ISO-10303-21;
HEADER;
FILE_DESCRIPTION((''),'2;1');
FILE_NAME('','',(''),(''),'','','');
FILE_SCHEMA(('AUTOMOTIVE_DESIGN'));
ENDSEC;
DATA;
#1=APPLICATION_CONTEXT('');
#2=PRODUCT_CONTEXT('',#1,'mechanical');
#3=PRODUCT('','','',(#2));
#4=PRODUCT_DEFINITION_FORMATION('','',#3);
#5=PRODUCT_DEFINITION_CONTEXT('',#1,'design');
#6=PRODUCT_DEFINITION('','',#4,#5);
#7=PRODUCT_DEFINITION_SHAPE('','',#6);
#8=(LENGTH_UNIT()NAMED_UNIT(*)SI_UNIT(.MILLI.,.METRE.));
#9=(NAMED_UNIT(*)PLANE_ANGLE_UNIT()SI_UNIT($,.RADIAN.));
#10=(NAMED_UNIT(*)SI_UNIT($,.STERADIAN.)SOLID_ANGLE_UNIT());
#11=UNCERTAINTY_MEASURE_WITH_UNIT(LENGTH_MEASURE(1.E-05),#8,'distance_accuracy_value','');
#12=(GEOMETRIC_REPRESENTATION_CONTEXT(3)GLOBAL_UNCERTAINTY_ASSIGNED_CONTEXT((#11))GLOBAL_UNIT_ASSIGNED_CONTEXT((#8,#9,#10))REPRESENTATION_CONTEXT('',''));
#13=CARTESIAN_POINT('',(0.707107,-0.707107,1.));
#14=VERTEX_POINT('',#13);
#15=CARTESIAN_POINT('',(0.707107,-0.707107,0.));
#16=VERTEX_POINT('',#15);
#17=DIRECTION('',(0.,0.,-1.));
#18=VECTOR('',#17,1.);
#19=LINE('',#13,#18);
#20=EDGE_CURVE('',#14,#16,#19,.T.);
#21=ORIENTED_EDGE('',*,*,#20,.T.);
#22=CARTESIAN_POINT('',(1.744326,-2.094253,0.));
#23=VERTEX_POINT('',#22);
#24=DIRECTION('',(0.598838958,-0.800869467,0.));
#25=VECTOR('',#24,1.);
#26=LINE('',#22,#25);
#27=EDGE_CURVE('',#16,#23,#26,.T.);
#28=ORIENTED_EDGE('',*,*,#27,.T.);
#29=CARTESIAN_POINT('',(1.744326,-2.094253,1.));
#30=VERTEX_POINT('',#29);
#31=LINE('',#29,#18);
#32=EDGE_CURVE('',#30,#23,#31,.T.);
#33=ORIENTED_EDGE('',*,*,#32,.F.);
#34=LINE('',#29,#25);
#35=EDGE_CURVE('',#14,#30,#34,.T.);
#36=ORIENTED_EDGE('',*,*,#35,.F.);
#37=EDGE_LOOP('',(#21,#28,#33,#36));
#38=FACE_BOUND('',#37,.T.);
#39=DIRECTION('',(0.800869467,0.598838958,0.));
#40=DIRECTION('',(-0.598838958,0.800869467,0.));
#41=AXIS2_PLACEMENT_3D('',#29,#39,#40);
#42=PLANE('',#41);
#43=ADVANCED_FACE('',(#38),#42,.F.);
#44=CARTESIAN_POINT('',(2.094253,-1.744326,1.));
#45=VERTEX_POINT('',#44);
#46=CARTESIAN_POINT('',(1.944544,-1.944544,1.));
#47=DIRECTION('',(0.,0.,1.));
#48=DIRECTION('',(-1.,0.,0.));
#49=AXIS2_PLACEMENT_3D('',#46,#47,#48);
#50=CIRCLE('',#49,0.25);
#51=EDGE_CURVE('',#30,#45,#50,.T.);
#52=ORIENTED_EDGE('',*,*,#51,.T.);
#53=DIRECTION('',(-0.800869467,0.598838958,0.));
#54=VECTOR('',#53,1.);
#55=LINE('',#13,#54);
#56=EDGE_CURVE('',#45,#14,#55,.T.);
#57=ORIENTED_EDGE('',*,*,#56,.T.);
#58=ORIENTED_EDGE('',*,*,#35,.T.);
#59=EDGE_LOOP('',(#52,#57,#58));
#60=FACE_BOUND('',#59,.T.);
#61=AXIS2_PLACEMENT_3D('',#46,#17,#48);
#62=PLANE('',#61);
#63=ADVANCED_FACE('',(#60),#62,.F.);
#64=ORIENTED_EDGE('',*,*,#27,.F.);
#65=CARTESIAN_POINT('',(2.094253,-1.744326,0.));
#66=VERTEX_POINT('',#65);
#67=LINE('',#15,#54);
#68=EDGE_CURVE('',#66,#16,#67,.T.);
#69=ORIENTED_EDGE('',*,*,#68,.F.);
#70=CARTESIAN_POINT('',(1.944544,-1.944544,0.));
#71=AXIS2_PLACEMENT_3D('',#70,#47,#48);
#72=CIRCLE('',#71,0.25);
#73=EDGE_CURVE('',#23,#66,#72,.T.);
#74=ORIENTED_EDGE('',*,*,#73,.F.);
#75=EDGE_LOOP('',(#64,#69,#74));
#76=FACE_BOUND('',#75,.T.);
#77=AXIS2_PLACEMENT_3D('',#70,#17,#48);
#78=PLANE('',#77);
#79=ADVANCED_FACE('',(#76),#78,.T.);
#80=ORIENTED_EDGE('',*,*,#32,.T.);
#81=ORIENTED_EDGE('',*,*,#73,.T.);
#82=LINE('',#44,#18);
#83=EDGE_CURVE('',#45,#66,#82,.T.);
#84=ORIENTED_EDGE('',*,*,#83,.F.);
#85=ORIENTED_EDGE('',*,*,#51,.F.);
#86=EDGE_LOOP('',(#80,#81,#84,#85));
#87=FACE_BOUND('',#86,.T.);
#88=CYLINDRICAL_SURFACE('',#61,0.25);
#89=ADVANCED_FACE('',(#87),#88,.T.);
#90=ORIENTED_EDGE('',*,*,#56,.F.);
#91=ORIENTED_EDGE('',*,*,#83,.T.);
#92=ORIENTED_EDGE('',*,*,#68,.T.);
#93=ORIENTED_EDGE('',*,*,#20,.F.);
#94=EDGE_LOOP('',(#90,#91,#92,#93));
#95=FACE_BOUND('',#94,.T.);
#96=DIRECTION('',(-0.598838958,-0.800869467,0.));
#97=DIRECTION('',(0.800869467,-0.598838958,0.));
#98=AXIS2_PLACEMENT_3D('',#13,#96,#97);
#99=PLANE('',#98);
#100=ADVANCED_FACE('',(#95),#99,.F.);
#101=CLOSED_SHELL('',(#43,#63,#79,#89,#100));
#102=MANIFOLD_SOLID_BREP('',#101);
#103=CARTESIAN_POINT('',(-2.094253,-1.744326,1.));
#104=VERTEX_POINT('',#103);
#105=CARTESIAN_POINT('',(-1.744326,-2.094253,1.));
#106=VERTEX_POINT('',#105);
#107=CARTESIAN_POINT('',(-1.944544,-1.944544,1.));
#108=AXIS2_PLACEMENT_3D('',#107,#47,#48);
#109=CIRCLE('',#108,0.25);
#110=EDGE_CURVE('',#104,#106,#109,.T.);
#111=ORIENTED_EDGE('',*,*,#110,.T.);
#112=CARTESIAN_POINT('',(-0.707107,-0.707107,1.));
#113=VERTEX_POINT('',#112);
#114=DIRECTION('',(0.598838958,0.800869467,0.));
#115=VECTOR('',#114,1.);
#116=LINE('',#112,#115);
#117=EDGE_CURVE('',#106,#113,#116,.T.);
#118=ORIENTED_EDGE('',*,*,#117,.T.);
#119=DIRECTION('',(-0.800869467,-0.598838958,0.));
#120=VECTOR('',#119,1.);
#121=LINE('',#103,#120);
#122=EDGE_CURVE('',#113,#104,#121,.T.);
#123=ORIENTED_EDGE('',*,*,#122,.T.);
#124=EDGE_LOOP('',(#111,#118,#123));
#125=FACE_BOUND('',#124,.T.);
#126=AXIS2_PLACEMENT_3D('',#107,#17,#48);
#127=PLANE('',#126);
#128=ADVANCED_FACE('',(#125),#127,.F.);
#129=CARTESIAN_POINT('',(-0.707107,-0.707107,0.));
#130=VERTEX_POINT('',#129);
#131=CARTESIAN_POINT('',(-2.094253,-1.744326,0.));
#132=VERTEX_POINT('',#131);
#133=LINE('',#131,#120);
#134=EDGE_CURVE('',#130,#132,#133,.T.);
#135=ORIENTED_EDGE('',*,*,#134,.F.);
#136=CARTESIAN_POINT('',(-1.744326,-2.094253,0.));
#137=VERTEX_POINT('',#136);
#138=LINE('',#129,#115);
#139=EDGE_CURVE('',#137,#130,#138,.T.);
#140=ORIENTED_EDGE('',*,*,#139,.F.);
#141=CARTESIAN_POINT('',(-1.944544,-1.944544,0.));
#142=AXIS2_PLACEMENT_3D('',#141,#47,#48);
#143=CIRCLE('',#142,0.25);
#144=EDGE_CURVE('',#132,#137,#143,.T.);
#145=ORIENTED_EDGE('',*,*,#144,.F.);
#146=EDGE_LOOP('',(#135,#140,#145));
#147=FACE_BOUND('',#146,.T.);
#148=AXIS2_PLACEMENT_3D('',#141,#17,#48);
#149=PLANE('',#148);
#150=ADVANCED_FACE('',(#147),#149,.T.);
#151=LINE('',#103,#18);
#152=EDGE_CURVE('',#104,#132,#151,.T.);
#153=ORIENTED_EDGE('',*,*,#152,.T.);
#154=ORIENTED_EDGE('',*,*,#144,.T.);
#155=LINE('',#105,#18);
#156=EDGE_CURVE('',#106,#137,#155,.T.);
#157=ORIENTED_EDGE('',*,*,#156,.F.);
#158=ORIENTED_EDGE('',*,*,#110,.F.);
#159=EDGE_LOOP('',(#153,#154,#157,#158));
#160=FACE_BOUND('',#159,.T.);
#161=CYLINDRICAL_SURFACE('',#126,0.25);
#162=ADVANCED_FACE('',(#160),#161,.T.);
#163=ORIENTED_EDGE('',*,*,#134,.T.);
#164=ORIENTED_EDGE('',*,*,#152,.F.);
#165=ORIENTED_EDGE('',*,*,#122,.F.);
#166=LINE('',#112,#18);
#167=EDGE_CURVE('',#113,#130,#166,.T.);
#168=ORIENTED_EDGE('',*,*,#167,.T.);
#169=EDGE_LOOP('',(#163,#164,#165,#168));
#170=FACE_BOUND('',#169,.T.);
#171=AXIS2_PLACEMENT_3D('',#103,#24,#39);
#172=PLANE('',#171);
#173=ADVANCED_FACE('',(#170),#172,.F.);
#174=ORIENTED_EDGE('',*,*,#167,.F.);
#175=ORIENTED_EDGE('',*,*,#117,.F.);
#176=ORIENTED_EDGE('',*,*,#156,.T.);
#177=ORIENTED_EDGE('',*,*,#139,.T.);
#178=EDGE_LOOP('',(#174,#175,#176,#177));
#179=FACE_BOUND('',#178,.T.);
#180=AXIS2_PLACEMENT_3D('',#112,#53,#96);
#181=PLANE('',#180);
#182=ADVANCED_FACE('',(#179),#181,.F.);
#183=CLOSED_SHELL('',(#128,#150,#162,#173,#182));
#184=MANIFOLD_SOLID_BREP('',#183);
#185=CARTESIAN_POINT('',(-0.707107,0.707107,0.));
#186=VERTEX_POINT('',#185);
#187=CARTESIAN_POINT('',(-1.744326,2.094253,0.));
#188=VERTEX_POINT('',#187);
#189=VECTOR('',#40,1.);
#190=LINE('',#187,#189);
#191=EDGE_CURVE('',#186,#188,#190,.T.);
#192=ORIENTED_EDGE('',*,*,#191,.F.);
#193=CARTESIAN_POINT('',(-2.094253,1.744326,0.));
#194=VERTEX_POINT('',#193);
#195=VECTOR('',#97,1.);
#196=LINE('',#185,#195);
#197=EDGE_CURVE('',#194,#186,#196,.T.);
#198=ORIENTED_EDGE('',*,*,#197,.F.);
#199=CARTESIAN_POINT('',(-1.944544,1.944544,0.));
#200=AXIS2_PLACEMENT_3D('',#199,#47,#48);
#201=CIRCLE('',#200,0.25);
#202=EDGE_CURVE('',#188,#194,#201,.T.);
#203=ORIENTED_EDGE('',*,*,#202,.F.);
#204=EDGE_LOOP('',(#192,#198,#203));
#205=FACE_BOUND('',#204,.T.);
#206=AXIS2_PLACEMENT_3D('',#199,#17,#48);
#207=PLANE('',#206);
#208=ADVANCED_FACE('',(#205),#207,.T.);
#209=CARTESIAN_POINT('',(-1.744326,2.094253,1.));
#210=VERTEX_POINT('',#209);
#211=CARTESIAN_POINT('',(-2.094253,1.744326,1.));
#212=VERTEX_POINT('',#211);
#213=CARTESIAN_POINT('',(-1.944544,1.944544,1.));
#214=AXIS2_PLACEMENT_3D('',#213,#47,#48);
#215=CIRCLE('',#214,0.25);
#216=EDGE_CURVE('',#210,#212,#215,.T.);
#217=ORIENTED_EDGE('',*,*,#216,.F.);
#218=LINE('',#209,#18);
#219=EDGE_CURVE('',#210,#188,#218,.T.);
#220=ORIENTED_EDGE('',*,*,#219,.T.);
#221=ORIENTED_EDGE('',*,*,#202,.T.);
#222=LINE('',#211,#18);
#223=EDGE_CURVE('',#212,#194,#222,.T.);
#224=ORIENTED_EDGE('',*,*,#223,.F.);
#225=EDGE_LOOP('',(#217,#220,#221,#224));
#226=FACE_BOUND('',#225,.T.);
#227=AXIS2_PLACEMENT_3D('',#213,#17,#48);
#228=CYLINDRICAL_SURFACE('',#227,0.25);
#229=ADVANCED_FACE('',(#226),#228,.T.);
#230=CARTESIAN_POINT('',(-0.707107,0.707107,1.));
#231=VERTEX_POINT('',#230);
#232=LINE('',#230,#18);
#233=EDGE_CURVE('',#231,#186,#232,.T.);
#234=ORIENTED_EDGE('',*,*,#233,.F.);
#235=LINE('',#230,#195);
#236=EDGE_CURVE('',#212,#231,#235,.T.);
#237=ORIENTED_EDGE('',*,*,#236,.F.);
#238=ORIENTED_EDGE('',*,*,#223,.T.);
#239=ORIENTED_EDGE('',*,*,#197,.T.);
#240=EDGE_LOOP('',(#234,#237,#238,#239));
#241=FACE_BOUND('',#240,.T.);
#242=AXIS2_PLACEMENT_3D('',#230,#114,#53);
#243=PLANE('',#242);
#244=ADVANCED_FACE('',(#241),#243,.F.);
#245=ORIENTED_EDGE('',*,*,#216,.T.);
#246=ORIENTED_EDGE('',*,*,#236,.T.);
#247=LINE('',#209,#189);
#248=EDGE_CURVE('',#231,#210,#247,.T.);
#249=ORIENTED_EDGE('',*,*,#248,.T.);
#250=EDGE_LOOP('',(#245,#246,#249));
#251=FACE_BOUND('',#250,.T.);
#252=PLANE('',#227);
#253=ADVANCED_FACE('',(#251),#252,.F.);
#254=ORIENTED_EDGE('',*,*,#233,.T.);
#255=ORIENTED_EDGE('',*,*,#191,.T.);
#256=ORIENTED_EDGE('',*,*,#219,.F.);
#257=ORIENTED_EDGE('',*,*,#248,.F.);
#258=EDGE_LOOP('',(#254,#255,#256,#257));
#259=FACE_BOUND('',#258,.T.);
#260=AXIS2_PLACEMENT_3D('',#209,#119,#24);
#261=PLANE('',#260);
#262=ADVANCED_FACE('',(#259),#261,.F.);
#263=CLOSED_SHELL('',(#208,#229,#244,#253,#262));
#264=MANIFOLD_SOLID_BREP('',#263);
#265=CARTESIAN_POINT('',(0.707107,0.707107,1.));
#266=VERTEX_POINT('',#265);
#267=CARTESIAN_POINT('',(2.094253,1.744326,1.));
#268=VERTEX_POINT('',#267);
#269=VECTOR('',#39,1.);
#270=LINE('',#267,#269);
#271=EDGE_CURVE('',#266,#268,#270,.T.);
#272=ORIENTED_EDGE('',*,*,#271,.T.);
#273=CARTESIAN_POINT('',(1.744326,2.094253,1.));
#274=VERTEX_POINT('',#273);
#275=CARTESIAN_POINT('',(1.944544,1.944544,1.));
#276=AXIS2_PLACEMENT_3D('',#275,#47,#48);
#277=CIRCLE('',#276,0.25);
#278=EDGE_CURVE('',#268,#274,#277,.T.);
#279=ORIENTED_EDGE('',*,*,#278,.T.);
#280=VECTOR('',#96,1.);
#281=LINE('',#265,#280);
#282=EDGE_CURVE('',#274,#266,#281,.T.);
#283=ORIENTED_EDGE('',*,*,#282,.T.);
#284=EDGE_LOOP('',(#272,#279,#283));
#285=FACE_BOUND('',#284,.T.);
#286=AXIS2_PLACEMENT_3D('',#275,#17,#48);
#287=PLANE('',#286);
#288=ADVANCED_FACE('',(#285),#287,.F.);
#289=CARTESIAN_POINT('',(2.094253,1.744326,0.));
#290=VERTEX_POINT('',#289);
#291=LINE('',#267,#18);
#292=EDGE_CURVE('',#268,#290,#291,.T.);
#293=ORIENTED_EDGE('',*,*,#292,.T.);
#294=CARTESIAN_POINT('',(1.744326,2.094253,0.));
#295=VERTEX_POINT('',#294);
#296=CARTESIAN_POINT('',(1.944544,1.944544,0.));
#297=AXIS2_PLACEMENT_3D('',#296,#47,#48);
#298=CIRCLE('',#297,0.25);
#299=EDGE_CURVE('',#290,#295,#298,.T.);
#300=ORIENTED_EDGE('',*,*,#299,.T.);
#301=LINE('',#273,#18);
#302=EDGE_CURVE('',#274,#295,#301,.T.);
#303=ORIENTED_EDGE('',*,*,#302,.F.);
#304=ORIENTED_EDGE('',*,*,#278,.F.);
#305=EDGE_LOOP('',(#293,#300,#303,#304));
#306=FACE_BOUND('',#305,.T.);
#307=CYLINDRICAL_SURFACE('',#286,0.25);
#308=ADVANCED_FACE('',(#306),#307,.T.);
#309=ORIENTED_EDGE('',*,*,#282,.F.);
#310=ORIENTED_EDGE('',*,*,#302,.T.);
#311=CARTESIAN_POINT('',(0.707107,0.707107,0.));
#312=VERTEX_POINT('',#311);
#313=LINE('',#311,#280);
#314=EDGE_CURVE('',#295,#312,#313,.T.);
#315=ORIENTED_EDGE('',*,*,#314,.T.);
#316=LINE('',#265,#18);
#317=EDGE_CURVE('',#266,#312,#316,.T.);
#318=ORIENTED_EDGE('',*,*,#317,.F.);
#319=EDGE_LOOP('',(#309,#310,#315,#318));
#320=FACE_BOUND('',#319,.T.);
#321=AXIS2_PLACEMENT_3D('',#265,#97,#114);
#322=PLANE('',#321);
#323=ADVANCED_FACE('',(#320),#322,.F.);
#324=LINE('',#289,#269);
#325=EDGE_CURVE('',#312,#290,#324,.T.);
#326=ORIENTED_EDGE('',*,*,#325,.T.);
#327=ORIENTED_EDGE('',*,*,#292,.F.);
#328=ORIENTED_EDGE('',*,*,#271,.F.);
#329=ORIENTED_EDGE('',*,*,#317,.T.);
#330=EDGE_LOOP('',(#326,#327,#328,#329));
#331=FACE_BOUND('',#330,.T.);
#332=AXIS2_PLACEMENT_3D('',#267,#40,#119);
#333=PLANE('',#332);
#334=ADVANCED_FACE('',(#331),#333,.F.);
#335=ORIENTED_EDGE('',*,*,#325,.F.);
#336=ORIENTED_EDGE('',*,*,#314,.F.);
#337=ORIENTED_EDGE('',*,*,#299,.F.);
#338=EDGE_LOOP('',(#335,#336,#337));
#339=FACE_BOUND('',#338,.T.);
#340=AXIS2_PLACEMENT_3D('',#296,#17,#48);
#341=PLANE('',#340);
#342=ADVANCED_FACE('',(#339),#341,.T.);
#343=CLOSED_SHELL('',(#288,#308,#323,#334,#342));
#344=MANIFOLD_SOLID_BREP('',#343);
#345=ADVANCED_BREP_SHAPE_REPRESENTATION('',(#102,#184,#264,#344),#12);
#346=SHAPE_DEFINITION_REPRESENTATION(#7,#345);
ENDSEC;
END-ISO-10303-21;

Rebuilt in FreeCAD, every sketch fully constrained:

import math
import FreeCAD as App
import Part
import Sketcher

doc = App.newDocument("Part")
params = doc.addObject("Spreadsheet::Sheet", "Params")
for row, (alias, value) in enumerate([
    ("sketch1_radius", "0.25 mm"),
    ("pad1_length", "1 mm"),
    ("sketch2_radius", "0.25 mm"),
    ("pad2_length", "1 mm"),
    ("sketch3_radius", "0.25 mm"),
    ("pad3_length", "1 mm"),
    ("sketch4_radius", "0.25 mm"),
    ("pad4_length", "1 mm"),
], start=1):
    params.set(f"A{row}", alias)
    params.set(f"B{row}", "=" + value)
    params.setAlias(f"B{row}", alias)

body = doc.addObject("PartDesign::Body", "Body")

# Sketch on XY plane
sketch1 = body.newObject("Sketcher::SketchObject", "Sketch")
sketch1.AttachmentSupport = (doc.getObject("XY_Plane"), [""])
sketch1.MapMode = "FlatFace"
sketch1.addGeometry(Part.LineSegment(App.Vector(1.74, 2.09, 0), App.Vector(0.71, 0.71, 0)), False)
sketch1.addGeometry(Part.LineSegment(App.Vector(0.71, 0.71, 0), App.Vector(2.09, 1.74, 0)), False)
sketch1.addGeometry(Part.ArcOfCircle(Part.Circle(App.Vector(1.94, 1.94, 0), App.Vector(0, 0, 1), 0.25), math.radians(-53), math.radians(143)), False)
sketch1.addConstraint(Sketcher.Constraint("Coincident", 0, 2, 1, 1))
sketch1.addConstraint(Sketcher.Constraint("Tangent", 1, 2, 2, 1))
sketch1.addConstraint(Sketcher.Constraint("Tangent", 2, 2, 0, 1))
sketch1.addConstraint(Sketcher.Constraint("Radius", 2, 0.25))
sketch1.addConstraint(Sketcher.Constraint("Distance", 0, 1.732051))
sketch1.addConstraint(Sketcher.Constraint("DistanceX", 2, 3, 1, 2, 0.14971))
sketch1.addConstraint(Sketcher.Constraint("DistanceX", -1, 1, 2, 3, 1.944544))
sketch1.addConstraint(Sketcher.Constraint("DistanceY", -1, 1, 2, 3, 1.944544))
sketch1.setExpression("Constraints[3]", "Params.sketch1_radius")
pad1 = body.newObject("PartDesign::Pad", "Pad")
pad1.Profile = sketch1
pad1.setExpression("Length", "Params.pad1_length")
body2 = doc.addObject("PartDesign::Body", "Body001")

# Sketch on XY plane
sketch2 = body2.newObject("Sketcher::SketchObject", "Sketch001")
sketch2.AttachmentSupport = (doc.getObject("XY_Plane001"), [""])
sketch2.MapMode = "FlatFace"
sketch2.addGeometry(Part.LineSegment(App.Vector(0.71, -0.71, 0), App.Vector(1.74, -2.09, 0)), False)
sketch2.addGeometry(Part.ArcOfCircle(Part.Circle(App.Vector(1.94, -1.94, 0), App.Vector(0, 0, 1), 0.25), math.radians(-143), math.radians(53)), False)
sketch2.addGeometry(Part.LineSegment(App.Vector(2.09, -1.74, 0), App.Vector(0.71, -0.71, 0)), False)
sketch2.addConstraint(Sketcher.Constraint("Tangent", 0, 2, 1, 1))
sketch2.addConstraint(Sketcher.Constraint("Tangent", 1, 2, 2, 1))
sketch2.addConstraint(Sketcher.Constraint("Coincident", 2, 2, 0, 1))
sketch2.addConstraint(Sketcher.Constraint("Radius", 1, 0.25))
sketch2.addConstraint(Sketcher.Constraint("Distance", 0, 1.732051))
sketch2.addConstraint(Sketcher.Constraint("DistanceY", 0, 2, 1, 3, 0.14971))
sketch2.addConstraint(Sketcher.Constraint("DistanceX", -1, 1, 1, 3, 1.944544))
sketch2.addConstraint(Sketcher.Constraint("DistanceY", 1, 3, -1, 1, 1.944544))
sketch2.setExpression("Constraints[3]", "Params.sketch2_radius")
pad2 = body2.newObject("PartDesign::Pad", "Pad001")
pad2.Profile = sketch2
pad2.setExpression("Length", "Params.pad2_length")
body3 = doc.addObject("PartDesign::Body", "Body002")

# Sketch on XY plane
sketch3 = body3.newObject("Sketcher::SketchObject", "Sketch002")
sketch3.AttachmentSupport = (doc.getObject("XY_Plane002"), [""])
sketch3.MapMode = "FlatFace"
sketch3.addGeometry(Part.LineSegment(App.Vector(-0.71, -0.71, 0), App.Vector(-2.09, -1.74, 0)), False)
sketch3.addGeometry(Part.ArcOfCircle(Part.Circle(App.Vector(-1.94, -1.94, 0), App.Vector(0, 0, 1), 0.25), math.radians(127), math.radians(323)), False)
sketch3.addGeometry(Part.LineSegment(App.Vector(-1.74, -2.09, 0), App.Vector(-0.71, -0.71, 0)), False)
sketch3.addConstraint(Sketcher.Constraint("Tangent", 0, 2, 1, 1))
sketch3.addConstraint(Sketcher.Constraint("Tangent", 1, 2, 2, 1))
sketch3.addConstraint(Sketcher.Constraint("Coincident", 2, 2, 0, 1))
sketch3.addConstraint(Sketcher.Constraint("Radius", 1, 0.25))
sketch3.addConstraint(Sketcher.Constraint("Distance", 0, 1.732051))
sketch3.addConstraint(Sketcher.Constraint("DistanceX", 0, 2, 1, 3, 0.14971))
sketch3.addConstraint(Sketcher.Constraint("DistanceX", 1, 3, -1, 1, 1.944544))
sketch3.addConstraint(Sketcher.Constraint("DistanceY", 1, 3, -1, 1, 1.944544))
sketch3.setExpression("Constraints[3]", "Params.sketch3_radius")
pad3 = body3.newObject("PartDesign::Pad", "Pad002")
pad3.Profile = sketch3
pad3.setExpression("Length", "Params.pad3_length")
body4 = doc.addObject("PartDesign::Body", "Body003")

# Sketch on XY plane
sketch4 = body4.newObject("Sketcher::SketchObject", "Sketch003")
sketch4.AttachmentSupport = (doc.getObject("XY_Plane003"), [""])
sketch4.MapMode = "FlatFace"
sketch4.addGeometry(Part.LineSegment(App.Vector(-0.71, 0.71, 0), App.Vector(-1.74, 2.09, 0)), False)
sketch4.addGeometry(Part.ArcOfCircle(Part.Circle(App.Vector(-1.94, 1.94, 0), App.Vector(0, 0, 1), 0.25), math.radians(37), math.radians(233)), False)
sketch4.addGeometry(Part.LineSegment(App.Vector(-2.09, 1.74, 0), App.Vector(-0.71, 0.71, 0)), False)
sketch4.addConstraint(Sketcher.Constraint("Tangent", 0, 2, 1, 1))
sketch4.addConstraint(Sketcher.Constraint("Tangent", 1, 2, 2, 1))
sketch4.addConstraint(Sketcher.Constraint("Coincident", 2, 2, 0, 1))
sketch4.addConstraint(Sketcher.Constraint("Radius", 1, 0.25))
sketch4.addConstraint(Sketcher.Constraint("Distance", 0, 1.732051))
sketch4.addConstraint(Sketcher.Constraint("DistanceY", 1, 3, 0, 2, 0.14971))
sketch4.addConstraint(Sketcher.Constraint("DistanceX", 1, 3, -1, 1, 1.944544))
sketch4.addConstraint(Sketcher.Constraint("DistanceY", -1, 1, 1, 3, 1.944544))
sketch4.setExpression("Constraints[3]", "Params.sketch4_radius")
pad4 = body4.newObject("PartDesign::Pad", "Pad003")
pad4.Profile = sketch4
pad4.setExpression("Length", "Params.pad4_length")

doc.recompute()
